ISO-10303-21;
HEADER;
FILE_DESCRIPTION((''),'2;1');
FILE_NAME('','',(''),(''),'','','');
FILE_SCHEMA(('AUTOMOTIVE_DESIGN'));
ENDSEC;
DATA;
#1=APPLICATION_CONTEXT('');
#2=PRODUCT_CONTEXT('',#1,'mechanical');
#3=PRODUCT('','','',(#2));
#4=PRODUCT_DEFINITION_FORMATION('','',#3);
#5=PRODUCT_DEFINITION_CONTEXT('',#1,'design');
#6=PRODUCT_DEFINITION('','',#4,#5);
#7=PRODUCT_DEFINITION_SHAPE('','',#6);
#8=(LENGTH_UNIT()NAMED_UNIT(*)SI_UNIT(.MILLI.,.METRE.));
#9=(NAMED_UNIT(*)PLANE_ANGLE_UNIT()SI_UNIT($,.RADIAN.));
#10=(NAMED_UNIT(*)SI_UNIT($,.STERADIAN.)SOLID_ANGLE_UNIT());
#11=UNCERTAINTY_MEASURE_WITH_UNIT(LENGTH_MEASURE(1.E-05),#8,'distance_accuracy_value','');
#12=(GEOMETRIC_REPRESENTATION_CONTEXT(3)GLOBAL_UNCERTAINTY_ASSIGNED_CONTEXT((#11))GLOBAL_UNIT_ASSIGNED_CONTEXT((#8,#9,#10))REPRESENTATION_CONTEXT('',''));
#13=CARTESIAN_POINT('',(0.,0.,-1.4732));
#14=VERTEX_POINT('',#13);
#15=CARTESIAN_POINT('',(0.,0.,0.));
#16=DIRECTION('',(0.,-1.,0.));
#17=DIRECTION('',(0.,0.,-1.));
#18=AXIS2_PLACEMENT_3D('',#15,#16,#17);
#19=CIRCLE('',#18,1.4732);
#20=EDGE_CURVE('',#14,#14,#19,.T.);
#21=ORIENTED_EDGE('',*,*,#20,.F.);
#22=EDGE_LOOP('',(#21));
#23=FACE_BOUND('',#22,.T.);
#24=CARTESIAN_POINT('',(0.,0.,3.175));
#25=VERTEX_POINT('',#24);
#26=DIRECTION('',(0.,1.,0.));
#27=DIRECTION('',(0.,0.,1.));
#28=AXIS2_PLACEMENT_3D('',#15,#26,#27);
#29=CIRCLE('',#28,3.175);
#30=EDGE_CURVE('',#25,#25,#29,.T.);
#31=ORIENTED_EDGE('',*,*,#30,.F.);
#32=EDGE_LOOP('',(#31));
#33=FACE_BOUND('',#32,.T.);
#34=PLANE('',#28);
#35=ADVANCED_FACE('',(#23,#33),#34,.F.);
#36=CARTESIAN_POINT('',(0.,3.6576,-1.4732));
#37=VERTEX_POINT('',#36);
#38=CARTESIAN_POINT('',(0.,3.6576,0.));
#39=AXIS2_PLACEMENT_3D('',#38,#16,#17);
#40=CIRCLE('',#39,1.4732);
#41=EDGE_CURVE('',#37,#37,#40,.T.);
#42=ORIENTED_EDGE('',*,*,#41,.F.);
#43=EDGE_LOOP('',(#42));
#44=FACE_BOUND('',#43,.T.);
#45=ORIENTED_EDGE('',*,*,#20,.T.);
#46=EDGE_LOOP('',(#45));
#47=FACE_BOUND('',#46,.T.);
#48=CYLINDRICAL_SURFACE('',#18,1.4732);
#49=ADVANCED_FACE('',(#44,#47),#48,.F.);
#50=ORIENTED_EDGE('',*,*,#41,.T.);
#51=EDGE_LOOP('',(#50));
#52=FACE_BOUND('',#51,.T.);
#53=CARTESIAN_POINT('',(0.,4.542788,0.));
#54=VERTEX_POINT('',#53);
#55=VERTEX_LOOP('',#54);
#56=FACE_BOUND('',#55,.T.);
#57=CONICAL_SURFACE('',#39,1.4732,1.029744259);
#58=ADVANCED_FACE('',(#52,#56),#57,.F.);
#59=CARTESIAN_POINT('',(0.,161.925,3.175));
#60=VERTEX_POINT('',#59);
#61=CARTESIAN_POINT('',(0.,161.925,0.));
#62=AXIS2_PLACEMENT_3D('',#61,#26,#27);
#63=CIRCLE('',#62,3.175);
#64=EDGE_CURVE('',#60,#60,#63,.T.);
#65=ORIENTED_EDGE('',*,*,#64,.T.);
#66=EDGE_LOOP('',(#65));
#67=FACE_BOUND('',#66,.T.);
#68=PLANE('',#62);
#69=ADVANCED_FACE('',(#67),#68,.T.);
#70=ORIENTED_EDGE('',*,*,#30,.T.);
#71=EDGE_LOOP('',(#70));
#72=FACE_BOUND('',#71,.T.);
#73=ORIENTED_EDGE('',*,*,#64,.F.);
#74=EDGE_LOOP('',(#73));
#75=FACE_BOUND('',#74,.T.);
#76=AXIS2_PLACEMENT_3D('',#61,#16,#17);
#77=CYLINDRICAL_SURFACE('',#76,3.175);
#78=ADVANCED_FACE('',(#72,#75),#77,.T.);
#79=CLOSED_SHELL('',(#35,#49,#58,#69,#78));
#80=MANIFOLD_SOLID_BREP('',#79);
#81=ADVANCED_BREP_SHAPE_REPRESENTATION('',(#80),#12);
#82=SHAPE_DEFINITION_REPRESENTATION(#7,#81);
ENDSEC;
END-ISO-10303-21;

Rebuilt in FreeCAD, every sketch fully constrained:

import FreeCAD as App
import Part
import Sketcher
Q = App.Units.Quantity

doc = App.newDocument("Part")
body = doc.addObject("PartDesign::Body", "Body")

sketch1 = body.newObject("Sketcher::SketchObject", "Sketch")
sketch1.AttachmentSupport = (doc.getObject("XZ_Plane"), [""])
sketch1.MapMode = "FlatFace"
sketch1.addGeometry(Part.Circle(App.Vector(0, 0, 0), App.Vector(0, 0, 1), 3.175), False)
sketch1.addConstraint(Sketcher.Constraint("Coincident", 0, 3, -1, 1))
sketch1.addConstraint(Sketcher.Constraint("Diameter", 0, Q("0.25 in")))
pad1 = body.newObject("PartDesign::Pad", "Pad")
pad1.Profile = sketch1
pad1.Length = Q("6.375 in")
pad1.Reversed = True

sketch2 = body.newObject("Sketcher::SketchObject", "Sketch001")
sketch2.AttachmentSupport = (doc.getObject("XZ_Plane"), [""])
sketch2.MapMode = "FlatFace"
sketch2.addGeometry(Part.Circle(App.Vector(0, 0, 0), App.Vector(0, 0, 1), 1.4732), False)
sketch2.addConstraint(Sketcher.Constraint("Coincident", 0, 3, -1, 1))
sketch2.addConstraint(Sketcher.Constraint("Diameter", 0, Q("0.116 in")))
doc.recompute()
hole = body.newObject("PartDesign::Hole", "Hole")
hole.Profile = sketch2
hole.ThreadType = "None"
hole.Diameter = Q("0.116 in")
hole.DepthType = "Dimension"
hole.Depth = Q("0.144 in")
hole.DrillPoint = "Angled"
hole.DrillPointAngle = 118

doc.recompute()
